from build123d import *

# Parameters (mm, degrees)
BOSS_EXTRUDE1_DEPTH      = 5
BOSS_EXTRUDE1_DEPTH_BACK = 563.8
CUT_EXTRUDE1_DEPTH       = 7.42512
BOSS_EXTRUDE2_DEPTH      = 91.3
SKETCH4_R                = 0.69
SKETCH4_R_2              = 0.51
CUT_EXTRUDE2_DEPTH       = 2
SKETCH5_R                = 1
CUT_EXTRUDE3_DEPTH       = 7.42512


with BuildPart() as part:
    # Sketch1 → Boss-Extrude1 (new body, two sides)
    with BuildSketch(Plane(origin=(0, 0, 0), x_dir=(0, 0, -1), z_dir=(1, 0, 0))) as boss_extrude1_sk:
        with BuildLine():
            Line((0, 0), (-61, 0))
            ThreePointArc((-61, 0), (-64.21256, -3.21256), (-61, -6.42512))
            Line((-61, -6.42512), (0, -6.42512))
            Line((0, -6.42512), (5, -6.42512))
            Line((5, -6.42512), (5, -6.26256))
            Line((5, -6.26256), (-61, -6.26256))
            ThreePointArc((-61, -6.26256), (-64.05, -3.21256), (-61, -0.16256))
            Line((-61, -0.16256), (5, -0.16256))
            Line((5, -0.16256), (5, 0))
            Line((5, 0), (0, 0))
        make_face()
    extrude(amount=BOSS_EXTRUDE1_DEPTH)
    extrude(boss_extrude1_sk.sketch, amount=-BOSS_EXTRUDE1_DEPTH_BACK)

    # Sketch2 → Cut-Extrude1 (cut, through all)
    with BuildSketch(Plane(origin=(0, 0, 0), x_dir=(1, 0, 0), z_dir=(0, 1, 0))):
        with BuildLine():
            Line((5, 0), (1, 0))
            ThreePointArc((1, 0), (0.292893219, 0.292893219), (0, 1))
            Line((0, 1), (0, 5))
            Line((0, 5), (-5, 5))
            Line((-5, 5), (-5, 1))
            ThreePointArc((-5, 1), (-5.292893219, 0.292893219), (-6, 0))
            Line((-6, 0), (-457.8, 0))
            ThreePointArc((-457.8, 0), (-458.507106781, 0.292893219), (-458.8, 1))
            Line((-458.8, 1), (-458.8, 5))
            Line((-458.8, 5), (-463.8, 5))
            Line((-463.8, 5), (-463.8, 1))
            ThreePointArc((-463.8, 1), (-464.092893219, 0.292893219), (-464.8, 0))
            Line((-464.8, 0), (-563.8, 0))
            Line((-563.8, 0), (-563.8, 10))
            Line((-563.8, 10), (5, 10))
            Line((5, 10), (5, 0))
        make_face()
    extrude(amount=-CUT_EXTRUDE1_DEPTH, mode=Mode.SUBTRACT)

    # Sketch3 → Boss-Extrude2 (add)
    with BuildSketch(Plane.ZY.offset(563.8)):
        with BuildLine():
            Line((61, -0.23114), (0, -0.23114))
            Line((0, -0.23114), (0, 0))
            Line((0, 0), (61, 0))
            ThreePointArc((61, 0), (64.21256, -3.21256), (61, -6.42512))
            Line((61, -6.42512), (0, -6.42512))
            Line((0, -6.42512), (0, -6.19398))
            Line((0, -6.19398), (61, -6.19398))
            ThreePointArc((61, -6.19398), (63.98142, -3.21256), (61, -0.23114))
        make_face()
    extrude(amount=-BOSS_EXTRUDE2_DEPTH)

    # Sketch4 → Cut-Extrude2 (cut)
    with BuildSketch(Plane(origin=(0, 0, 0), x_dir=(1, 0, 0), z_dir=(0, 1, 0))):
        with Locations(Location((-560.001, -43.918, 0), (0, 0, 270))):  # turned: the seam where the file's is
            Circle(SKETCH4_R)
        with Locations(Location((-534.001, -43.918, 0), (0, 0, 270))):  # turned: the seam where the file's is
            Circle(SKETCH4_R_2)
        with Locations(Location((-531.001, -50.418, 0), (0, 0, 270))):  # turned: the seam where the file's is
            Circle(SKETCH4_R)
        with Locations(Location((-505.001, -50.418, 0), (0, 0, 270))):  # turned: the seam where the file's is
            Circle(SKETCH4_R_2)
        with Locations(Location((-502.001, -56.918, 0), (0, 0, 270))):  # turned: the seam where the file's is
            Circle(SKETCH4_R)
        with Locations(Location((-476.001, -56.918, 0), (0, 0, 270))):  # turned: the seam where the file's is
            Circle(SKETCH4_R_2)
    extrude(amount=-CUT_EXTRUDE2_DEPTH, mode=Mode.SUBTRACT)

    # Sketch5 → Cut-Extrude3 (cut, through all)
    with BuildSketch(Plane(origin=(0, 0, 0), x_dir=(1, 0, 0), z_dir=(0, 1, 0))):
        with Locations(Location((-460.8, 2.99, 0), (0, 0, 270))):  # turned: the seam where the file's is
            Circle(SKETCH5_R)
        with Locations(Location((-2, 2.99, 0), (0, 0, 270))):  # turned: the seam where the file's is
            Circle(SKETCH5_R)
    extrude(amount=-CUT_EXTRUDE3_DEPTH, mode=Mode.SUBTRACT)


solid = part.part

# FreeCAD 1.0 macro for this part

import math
import FreeCAD as App
import Part
import Sketcher
from FreeCAD import Vector
Q = App.Units.Quantity

doc = App.newDocument("Part")
body = doc.addObject("PartDesign::Body", "Body")

# Sketch on YZ plane
sketch1 = body.newObject("Sketcher::SketchObject", "Sketch")
sketch1.AttachmentSupport = (doc.getObject("YZ_Plane"), [""])
sketch1.MapMode = "FlatFace"
sketch1.addGeometry(Part.ArcOfCircle(Part.Circle(Vector(-3.21, 61, 0), Vector(0, 0, 1), 3.21), math.radians(0), math.radians(180)), False)
sketch1.addGeometry(Part.LineSegment(Vector(-6.43, 61, 0), Vector(-6.43, -5, 0)), False)
sketch1.addGeometry(Part.LineSegment(Vector(-6.43, -5, 0), Vector(-6.26, -5, 0)), False)
sketch1.addGeometry(Part.LineSegment(Vector(-6.26, -5, 0), Vector(-6.26, 61, 0)), False)
sketch1.addGeometry(Part.ArcOfCircle(Part.Circle(Vector(-3.21, 61, 0), Vector(0, 0, 1), 3.05), math.radians(0), math.radians(180)), False)
sketch1.addGeometry(Part.LineSegment(Vector(-0.16, 61, 0), Vector(-0.16, -5, 0)), False)
sketch1.addGeometry(Part.LineSegment(Vector(-0.16, -5, 0), Vector(0, -5, 0)), False)
sketch1.addGeometry(Part.LineSegment(Vector(0, -5, 0), Vector(0, 61, 0)), False)
sketch1.addConstraint(Sketcher.Constraint("Tangent", 0, 2, 1, 1))
sketch1.addConstraint(Sketcher.Constraint("Coincident", 1, 2, 2, 1))
sketch1.addConstraint(Sketcher.Constraint("Coincident", 2, 2, 3, 1))
sketch1.addConstraint(Sketcher.Constraint("Tangent", 3, 2, 4, 2))
sketch1.addConstraint(Sketcher.Constraint("Tangent", 4, 1, 5, 1))
sketch1.addConstraint(Sketcher.Constraint("Coincident", 5, 2, 6, 1))
sketch1.addConstraint(Sketcher.Constraint("Coincident", 6, 2, 7, 1))
sketch1.addConstraint(Sketcher.Constraint("Tangent", 7, 2, 0, 1))
sketch1.addConstraint(Sketcher.Constraint("Vertical", 1))
sketch1.addConstraint(Sketcher.Constraint("Horizontal", 2))
sketch1.addConstraint(Sketcher.Constraint("Vertical", 3))
sketch1.addConstraint(Sketcher.Constraint("Vertical", 5))
sketch1.addConstraint(Sketcher.Constraint("Horizontal", 6))
sketch1.addConstraint(Sketcher.Constraint("Vertical", 7))
sketch1.addConstraint(Sketcher.Constraint("Coincident", 4, 3, 0, 3))
sketch1.addConstraint(Sketcher.Constraint("PointOnObject", 6, 2, -2))
sketch1.addConstraint(Sketcher.Constraint("Horizontal", 2, 2, 5, 2))
sketch1.addConstraint(Sketcher.Constraint("DistanceY", 1, 2, 1, 1, Q("66 mm")))
sketch1.addConstraint(Sketcher.Constraint("Radius", 4, Q("3.05 mm")))
sketch1.addConstraint(Sketcher.Constraint("DistanceY", -1, 1, 0, 3, Q("61 mm")))
sketch1.addConstraint(Sketcher.Constraint("Radius", 0, Q("3.21256 mm")))
pad1 = body.newObject("PartDesign::Pad", "Pad")
pad1.Profile = sketch1
pad1.Type = "TwoLengths"
pad1.Length = 5
pad1.Length2 = 563.8

# Sketch on XZ plane
sketch2 = body.newObject("Sketcher::SketchObject", "Sketch001")
sketch2.AttachmentSupport = (doc.getObject("XZ_Plane"), [""])
sketch2.MapMode = "FlatFace"
sketch2.addGeometry(Part.LineSegment(Vector(1, 0, 0), Vector(5, 0, 0)), False)
sketch2.addGeometry(Part.LineSegment(Vector(5, 0, 0), Vector(5, -10, 0)), False)
sketch2.addGeometry(Part.LineSegment(Vector(5, -10, 0), Vector(-563.8, -10, 0)), False)
sketch2.addGeometry(Part.LineSegment(Vector(-563.8, -10, 0), Vector(-563.8, 0, 0)), False)
sketch2.addGeometry(Part.LineSegment(Vector(-563.8, 0, 0), Vector(-464.8, 0, 0)), False)
sketch2.addGeometry(Part.ArcOfCircle(Part.Circle(Vector(-464.8, -1, 0), Vector(0, 0, 1), 1), math.radians(0), math.radians(90)), False)
sketch2.addGeometry(Part.LineSegment(Vector(-463.8, -1, 0), Vector(-463.8, -5, 0)), False)
sketch2.addGeometry(Part.LineSegment(Vector(-463.8, -5, 0), Vector(-458.8, -5, 0)), False)
sketch2.addGeometry(Part.LineSegment(Vector(-458.8, -5, 0), Vector(-458.8, -1, 0)), False)
sketch2.addGeometry(Part.ArcOfCircle(Part.Circle(Vector(-457.8, -1, 0), Vector(0, 0, 1), 1), math.radians(90), math.radians(180)), False)
sketch2.addGeometry(Part.LineSegment(Vector(-457.8, 0, 0), Vector(-6, 0, 0)), False)
sketch2.addGeometry(Part.ArcOfCircle(Part.Circle(Vector(-6, -1, 0), Vector(0, 0, 1), 1), math.radians(0), math.radians(90)), False)
sketch2.addGeometry(Part.LineSegment(Vector(-5, -1, 0), Vector(-5, -5, 0)), False)
sketch2.addGeometry(Part.LineSegment(Vector(-5, -5, 0), Vector(0, -5, 0)), False)
sketch2.addGeometry(Part.LineSegment(Vector(0, -5, 0), Vector(0, -1, 0)), False)
sketch2.addGeometry(Part.ArcOfCircle(Part.Circle(Vector(1, -1, 0), Vector(0, 0, 1), 1), math.radians(90), math.radians(180)), False)
sketch2.addConstraint(Sketcher.Constraint("Coincident", 0, 2, 1, 1))
sketch2.addConstraint(Sketcher.Constraint("Coincident", 1, 2, 2, 1))
sketch2.addConstraint(Sketcher.Constraint("Coincident", 2, 2, 3, 1))
sketch2.addConstraint(Sketcher.Constraint("Coincident", 3, 2, 4, 1))
sketch2.addConstraint(Sketcher.Constraint("Tangent", 4, 2, 5, 2))
sketch2.addConstraint(Sketcher.Constraint("Tangent", 5, 1, 6, 1))
sketch2.addConstraint(Sketcher.Constraint("Coincident", 6, 2, 7, 1))
sketch2.addConstraint(Sketcher.Constraint("Coincident", 7, 2, 8, 1))
sketch2.addConstraint(Sketcher.Constraint("Tangent", 8, 2, 9, 2))
sketch2.addConstraint(Sketcher.Constraint("Tangent", 9, 1, 10, 1))
sketch2.addConstraint(Sketcher.Constraint("Tangent", 10, 2, 11, 2))
sketch2.addConstraint(Sketcher.Constraint("Tangent", 11, 1, 12, 1))
sketch2.addConstraint(Sketcher.Constraint("Coincident", 12, 2, 13, 1))
sketch2.addConstraint(Sketcher.Constraint("Coincident", 13, 2, 14, 1))
sketch2.addConstraint(Sketcher.Constraint("Tangent", 14, 2, 15, 2))
sketch2.addConstraint(Sketcher.Constraint("Tangent", 15, 1, 0, 1))
sketch2.addConstraint(Sketcher.Constraint("Horizontal", 0))
sketch2.addConstraint(Sketcher.Constraint("Vertical", 1))
sketch2.addConstraint(Sketcher.Constraint("Horizontal", 2))
sketch2.addConstraint(Sketcher.Constraint("Vertical", 3))
sketch2.addConstraint(Sketcher.Constraint("Horizontal", 4))
sketch2.addConstraint(Sketcher.Constraint("Vertical", 6))
sketch2.addConstraint(Sketcher.Constraint("Horizontal", 7))
sketch2.addConstraint(Sketcher.Constraint("Vertical", 8))
sketch2.addConstraint(Sketcher.Constraint("Horizontal", 10))
sketch2.addConstraint(Sketcher.Constraint("Vertical", 12))
sketch2.addConstraint(Sketcher.Constraint("Horizontal", 13))
sketch2.addConstraint(Sketcher.Constraint("Vertical", 14))
sketch2.addConstraint(Sketcher.Constraint("Equal", 5, 9))
sketch2.addConstraint(Sketcher.Constraint("Equal", 9, 11))
sketch2.addConstraint(Sketcher.Constraint("Equal", 11, 15))
sketch2.addConstraint(Sketcher.Constraint("PointOnObject", 0, 2, -1))
sketch2.addConstraint(Sketcher.Constraint("PointOnObject", 3, 2, -1))
sketch2.addConstraint(Sketcher.Constraint("PointOnObject", 9, 1, -1))
sketch2.addConstraint(Sketcher.Constraint("PointOnObject", 13, 2, -2))
sketch2.addConstraint(Sketcher.Constraint("Horizontal", 7, 2, 12, 2))
sketch2.addConstraint(Sketcher.Constraint("Equal", 7, 13))
sketch2.addConstraint(Sketcher.Constraint("Equal", 0, 6))
sketch2.addConstraint(Sketcher.Constraint("Radius", 5, Q("1 mm")))
sketch2.addConstraint(Sketcher.Constraint("DistanceX", 0, 1, 0, 2, Q("4 mm")))
sketch2.addConstraint(Sketcher.Constraint("DistanceX", 4, 1, 4, 2, Q("99 mm")))
sketch2.addConstraint(Sketcher.Constraint("DistanceX", 7, 1, 7, 2, Q("5 mm")))
sketch2.addConstraint(Sketcher.Constraint("DistanceY", 1, 2, 1, 1, Q("10 mm")))
sketch2.addConstraint(Sketcher.Constraint("DistanceX", 2, 2, 2, 1, Q("568.8 mm")))
pocket1 = body.newObject("PartDesign::Pocket", "Pocket")
pocket1.Profile = sketch2
pocket1.Type = "ThroughAll"
pocket1.Reversed = True

# Sketch on YZ plane
sketch3 = body.newObject("Sketcher::SketchObject", "Sketch002")
sketch3.AttachmentSupport = (doc.getObject("YZ_Plane"), [""])
sketch3.MapMode = "FlatFace"
sketch3.AttachmentOffset = App.Placement(Vector(0, 0, -563.8), App.Rotation())
sketch3.addGeometry(Part.LineSegment(Vector(-0.23, 0, 0), Vector(-0.23, 61, 0)), False)
sketch3.addGeometry(Part.ArcOfCircle(Part.Circle(Vector(-3.21, 61, 0), Vector(0, 0, 1), 2.98), math.radians(0), math.radians(180)), False)
sketch3.addGeometry(Part.LineSegment(Vector(-6.19, 61, 0), Vector(-6.19, 0, 0)), False)
sketch3.addGeometry(Part.LineSegment(Vector(-6.19, 0, 0), Vector(-6.43, 0, 0)), False)
sketch3.addGeometry(Part.LineSegment(Vector(-6.43, 0, 0), Vector(-6.43, 61, 0)), False)
sketch3.addGeometry(Part.ArcOfCircle(Part.Circle(Vector(-3.21, 61, 0), Vector(0, 0, 1), 3.21), math.radians(0), math.radians(180)), False)
sketch3.addGeometry(Part.LineSegment(Vector(0, 61, 0), Vector(0, 0, 0)), False)
sketch3.addGeometry(Part.LineSegment(Vector(0, 0, 0), Vector(-0.23, 0, 0)), False)
sketch3.addConstraint(Sketcher.Constraint("Tangent", 0, 2, 1, 1))
sketch3.addConstraint(Sketcher.Constraint("Tangent", 1, 2, 2, 1))
sketch3.addConstraint(Sketcher.Constraint("Coincident", 2, 2, 3, 1))
sketch3.addConstraint(Sketcher.Constraint("Coincident", 3, 2, 4, 1))
sketch3.addConstraint(Sketcher.Constraint("Tangent", 4, 2, 5, 2))
sketch3.addConstraint(Sketcher.Constraint("Tangent", 5, 1, 6, 1))
sketch3.addConstraint(Sketcher.Constraint("Coincident", 6, 2, 7, 1))
sketch3.addConstraint(Sketcher.Constraint("Coincident", 7, 2, 0, 1))
sketch3.addConstraint(Sketcher.Constraint("Vertical", 0))
sketch3.addConstraint(Sketcher.Constraint("Vertical", 2))
sketch3.addConstraint(Sketcher.Constraint("Horizontal", 3))
sketch3.addConstraint(Sketcher.Constraint("Vertical", 4))
sketch3.addConstraint(Sketcher.Constraint("Vertical", 6))
sketch3.addConstraint(Sketcher.Constraint("Horizontal", 7))
sketch3.addConstraint(Sketcher.Constraint("Coincident", 6, 2, -1, 1))
sketch3.addConstraint(Sketcher.Constraint("Coincident", 5, 3, 1, 3))
sketch3.addConstraint(Sketcher.Constraint("PointOnObject", 2, 2, -1))
sketch3.addConstraint(Sketcher.Constraint("DistanceY", 0, 1, 0, 2, Q("61 mm")))
sketch3.addConstraint(Sketcher.Constraint("Radius", 1, Q("2.98142 mm")))
sketch3.addConstraint(Sketcher.Constraint("Radius", 5, Q("3.21256 mm")))
pad2 = body.newObject("PartDesign::Pad", "Pad001")
pad2.Profile = sketch3
pad2.Length = 91.3

# Sketch on XZ plane
sketch4 = body.newObject("Sketcher::SketchObject", "Sketch003")
sketch4.AttachmentSupport = (doc.getObject("XZ_Plane"), [""])
sketch4.MapMode = "FlatFace"
sketch4.addGeometry(Part.Circle(Vector(-560, 43.9, 0), Vector(0, 0, 1), 0.7), False)
sketch4.addGeometry(Part.Circle(Vector(-534, 43.9, 0), Vector(0, 0, 1), 0.5), False)
sketch4.addGeometry(Part.Circle(Vector(-531, 50.4, 0), Vector(0, 0, 1), 0.7), False)
sketch4.addGeometry(Part.Circle(Vector(-505, 50.4, 0), Vector(0, 0, 1), 0.5), False)
sketch4.addGeometry(Part.Circle(Vector(-502, 56.9, 0), Vector(0, 0, 1), 0.7), False)
sketch4.addGeometry(Part.Circle(Vector(-476, 56.9, 0), Vector(0, 0, 1), 0.5), False)
sketch4.addConstraint(Sketcher.Constraint("Equal", 0, 2))
sketch4.addConstraint(Sketcher.Constraint("Equal", 1, 3))
sketch4.addConstraint(Sketcher.Constraint("Equal", 2, 4))
sketch4.addConstraint(Sketcher.Constraint("Equal", 3, 5))
sketch4.addConstraint(Sketcher.Constraint("Horizontal", 0, 3, 1, 3))
sketch4.addConstraint(Sketcher.Constraint("Horizontal", 2, 3, 3, 3))
sketch4.addConstraint(Sketcher.Constraint("Horizontal", 4, 3, 5, 3))
sketch4.addConstraint(Sketcher.Constraint("Diameter", 0, Q("1.38 mm")))
sketch4.addConstraint(Sketcher.Constraint("Diameter", 1, Q("1.02 mm")))
sketch4.addConstraint(Sketcher.Constraint("DistanceX", 0, 3, 1, 3, Q("26 mm")))
sketch4.addConstraint(Sketcher.Constraint("DistanceX", 1, 3, 2, 3, Q("3 mm")))
sketch4.addConstraint(Sketcher.Constraint("DistanceX", 2, 3, 3, 3, Q("26 mm")))
sketch4.addConstraint(Sketcher.Constraint("DistanceX", 3, 3, 4, 3, Q("3 mm")))
sketch4.addConstraint(Sketcher.Constraint("DistanceY", 1, 3, 4, 3, Q("13 mm")))
sketch4.addConstraint(Sketcher.Constraint("DistanceX", 4, 3, 5, 3, Q("26 mm")))
sketch4.addConstraint(Sketcher.Constraint("DistanceY", 1, 3, 2, 3, Q("6.5 mm")))
sketch4.addConstraint(Sketcher.Constraint("DistanceX", 0, 3, -1, 1, Q("560.001 mm")))
sketch4.addConstraint(Sketcher.Constraint("DistanceY", -1, 1, 0, 3, Q("43.918 mm")))
pocket2 = body.newObject("PartDesign::Pocket", "Pocket001")
pocket2.Profile = sketch4
pocket2.Length = 2
pocket2.Reversed = True

# Sketch on XZ plane
sketch5 = body.newObject("Sketcher::SketchObject", "Sketch004")
sketch5.AttachmentSupport = (doc.getObject("XZ_Plane"), [""])
sketch5.MapMode = "FlatFace"
sketch5.addGeometry(Part.Circle(Vector(-460.8, -3, 0), Vector(0, 0, 1), 1), False)
sketch5.addGeometry(Part.Circle(Vector(-2, -3, 0), Vector(0, 0, 1), 1), False)
sketch5.addConstraint(Sketcher.Constraint("Equal", 0, 1))
sketch5.addConstraint(Sketcher.Constraint("Horizontal", 0, 3, 1, 3))
sketch5.addConstraint(Sketcher.Constraint("Diameter", 0, Q("2 mm")))
sketch5.addConstraint(Sketcher.Constraint("DistanceX", 1, 3, -1, 1, Q("2 mm")))
sketch5.addConstraint(Sketcher.Constraint("DistanceX", 0, 3, -1, 1, Q("460.8 mm")))
sketch5.addConstraint(Sketcher.Constraint("DistanceY", 0, 3, -1, 1, Q("2.99 mm")))
pocket3 = body.newObject("PartDesign::Pocket", "Pocket002")
pocket3.Profile = sketch5
pocket3.Type = "ThroughAll"
pocket3.Reversed = True

doc.recompute()
